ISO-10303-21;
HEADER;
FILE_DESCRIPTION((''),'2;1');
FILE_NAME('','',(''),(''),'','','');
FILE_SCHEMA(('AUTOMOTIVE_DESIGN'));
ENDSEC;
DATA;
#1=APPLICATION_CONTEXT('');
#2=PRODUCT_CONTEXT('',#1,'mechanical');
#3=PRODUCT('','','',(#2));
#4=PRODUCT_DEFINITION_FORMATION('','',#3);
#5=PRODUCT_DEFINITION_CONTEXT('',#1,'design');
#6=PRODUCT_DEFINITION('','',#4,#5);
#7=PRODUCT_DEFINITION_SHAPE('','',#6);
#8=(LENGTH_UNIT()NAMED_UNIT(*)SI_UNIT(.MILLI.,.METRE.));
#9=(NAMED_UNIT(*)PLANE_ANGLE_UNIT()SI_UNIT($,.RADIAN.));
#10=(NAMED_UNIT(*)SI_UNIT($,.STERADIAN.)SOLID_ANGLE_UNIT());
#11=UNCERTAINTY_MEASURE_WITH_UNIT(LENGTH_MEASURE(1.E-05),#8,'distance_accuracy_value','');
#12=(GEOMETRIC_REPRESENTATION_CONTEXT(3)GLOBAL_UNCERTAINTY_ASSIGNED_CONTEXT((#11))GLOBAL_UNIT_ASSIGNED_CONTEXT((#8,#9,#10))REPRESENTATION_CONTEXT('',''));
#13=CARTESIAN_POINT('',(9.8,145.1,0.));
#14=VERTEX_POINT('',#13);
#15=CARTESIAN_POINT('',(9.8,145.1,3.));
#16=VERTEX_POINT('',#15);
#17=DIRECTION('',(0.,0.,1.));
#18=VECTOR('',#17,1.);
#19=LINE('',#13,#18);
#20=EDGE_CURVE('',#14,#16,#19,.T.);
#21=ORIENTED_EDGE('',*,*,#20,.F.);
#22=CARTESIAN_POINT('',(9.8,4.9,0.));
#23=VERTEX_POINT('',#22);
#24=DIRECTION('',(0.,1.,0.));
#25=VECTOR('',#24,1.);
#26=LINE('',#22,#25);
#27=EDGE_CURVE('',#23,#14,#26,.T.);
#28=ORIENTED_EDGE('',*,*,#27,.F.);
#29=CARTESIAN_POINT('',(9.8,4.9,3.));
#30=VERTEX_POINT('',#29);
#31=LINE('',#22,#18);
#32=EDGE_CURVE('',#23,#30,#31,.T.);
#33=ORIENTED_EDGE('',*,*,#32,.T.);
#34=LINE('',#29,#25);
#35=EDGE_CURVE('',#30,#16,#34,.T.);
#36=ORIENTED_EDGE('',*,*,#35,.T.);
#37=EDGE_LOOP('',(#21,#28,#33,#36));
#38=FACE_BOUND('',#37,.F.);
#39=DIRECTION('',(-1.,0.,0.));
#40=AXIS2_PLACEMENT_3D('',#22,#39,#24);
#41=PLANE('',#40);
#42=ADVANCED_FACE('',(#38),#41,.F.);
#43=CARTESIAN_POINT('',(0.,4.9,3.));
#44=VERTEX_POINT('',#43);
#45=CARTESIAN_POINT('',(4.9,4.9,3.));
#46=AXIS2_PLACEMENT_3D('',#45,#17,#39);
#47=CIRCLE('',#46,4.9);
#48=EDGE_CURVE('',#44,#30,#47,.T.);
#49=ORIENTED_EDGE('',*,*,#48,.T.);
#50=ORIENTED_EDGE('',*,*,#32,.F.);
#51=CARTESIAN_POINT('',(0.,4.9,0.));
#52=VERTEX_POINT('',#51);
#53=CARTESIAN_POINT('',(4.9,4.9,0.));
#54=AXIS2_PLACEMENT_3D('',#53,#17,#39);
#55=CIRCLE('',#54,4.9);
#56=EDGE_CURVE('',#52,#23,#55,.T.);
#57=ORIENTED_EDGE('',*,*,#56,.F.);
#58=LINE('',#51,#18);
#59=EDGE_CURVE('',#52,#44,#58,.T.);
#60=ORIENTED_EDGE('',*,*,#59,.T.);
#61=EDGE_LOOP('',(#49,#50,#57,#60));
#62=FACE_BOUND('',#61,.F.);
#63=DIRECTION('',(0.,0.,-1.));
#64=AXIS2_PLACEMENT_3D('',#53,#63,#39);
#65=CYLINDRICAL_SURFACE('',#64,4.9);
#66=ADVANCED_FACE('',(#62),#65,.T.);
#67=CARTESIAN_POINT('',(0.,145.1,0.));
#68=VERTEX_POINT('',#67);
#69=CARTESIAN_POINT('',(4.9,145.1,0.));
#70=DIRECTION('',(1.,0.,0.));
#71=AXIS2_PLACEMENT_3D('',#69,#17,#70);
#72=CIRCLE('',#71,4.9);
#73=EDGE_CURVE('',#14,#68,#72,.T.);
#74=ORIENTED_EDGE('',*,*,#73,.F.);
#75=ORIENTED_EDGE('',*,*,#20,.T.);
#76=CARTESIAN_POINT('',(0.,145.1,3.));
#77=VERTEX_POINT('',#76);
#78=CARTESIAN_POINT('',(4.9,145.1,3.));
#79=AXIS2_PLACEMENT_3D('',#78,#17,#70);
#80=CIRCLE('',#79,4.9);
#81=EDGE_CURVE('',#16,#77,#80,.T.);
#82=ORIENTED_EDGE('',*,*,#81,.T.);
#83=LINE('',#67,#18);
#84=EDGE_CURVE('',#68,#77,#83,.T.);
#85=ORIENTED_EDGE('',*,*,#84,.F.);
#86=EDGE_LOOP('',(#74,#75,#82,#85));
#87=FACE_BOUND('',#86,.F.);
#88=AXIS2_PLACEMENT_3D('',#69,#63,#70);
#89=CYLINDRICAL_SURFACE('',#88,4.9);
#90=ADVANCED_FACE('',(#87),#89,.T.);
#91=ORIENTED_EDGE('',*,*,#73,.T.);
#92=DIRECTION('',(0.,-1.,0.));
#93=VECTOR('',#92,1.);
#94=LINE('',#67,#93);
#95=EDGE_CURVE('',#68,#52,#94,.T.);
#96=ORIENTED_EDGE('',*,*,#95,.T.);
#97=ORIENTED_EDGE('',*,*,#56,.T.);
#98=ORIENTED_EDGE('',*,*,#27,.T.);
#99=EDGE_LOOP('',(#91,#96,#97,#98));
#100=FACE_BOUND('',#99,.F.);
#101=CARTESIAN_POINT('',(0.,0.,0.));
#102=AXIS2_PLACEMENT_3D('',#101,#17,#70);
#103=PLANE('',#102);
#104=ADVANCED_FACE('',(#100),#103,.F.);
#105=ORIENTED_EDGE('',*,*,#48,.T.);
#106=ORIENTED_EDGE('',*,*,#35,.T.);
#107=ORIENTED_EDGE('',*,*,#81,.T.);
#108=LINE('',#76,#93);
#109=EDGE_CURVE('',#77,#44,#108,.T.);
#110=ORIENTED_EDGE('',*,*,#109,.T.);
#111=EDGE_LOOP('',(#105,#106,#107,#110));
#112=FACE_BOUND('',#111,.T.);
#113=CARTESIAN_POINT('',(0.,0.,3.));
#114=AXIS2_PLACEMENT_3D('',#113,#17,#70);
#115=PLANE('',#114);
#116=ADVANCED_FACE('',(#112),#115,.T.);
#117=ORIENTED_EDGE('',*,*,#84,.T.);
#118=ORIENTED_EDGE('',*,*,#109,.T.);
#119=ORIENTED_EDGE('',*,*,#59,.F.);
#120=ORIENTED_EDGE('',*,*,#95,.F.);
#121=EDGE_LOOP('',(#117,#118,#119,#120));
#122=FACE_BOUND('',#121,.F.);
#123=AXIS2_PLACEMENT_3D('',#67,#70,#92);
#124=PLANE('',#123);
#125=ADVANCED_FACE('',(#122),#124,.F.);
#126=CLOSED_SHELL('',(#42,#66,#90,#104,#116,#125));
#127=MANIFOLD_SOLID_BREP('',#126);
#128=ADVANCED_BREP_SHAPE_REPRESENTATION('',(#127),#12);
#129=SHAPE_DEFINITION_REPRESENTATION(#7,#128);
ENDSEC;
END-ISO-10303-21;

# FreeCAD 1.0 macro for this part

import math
import FreeCAD as App
import Part
import Sketcher
from FreeCAD import Vector
Q = App.Units.Quantity

doc = App.newDocument("Part")
body = doc.addObject("PartDesign::Body", "Body")

sketch1 = body.newObject("Sketcher::SketchObject", "Sketch")
sketch1.AttachmentSupport = (doc.getObject("XY_Plane"), [""])
sketch1.MapMode = "FlatFace"
sketch1.addGeometry(Part.ArcOfCircle(Part.Circle(Vector(4.9, 4.9, 0), Vector(0, 0, 1), 4.9), math.radians(180), math.radians(360)), False)
sketch1.addGeometry(Part.LineSegment(Vector(9.8, 4.9, 0), Vector(9.8, 145.1, 0)), False)
sketch1.addGeometry(Part.ArcOfCircle(Part.Circle(Vector(4.9, 145.1, 0), Vector(0, 0, 1), 4.9), math.radians(0), math.radians(180)), False)
sketch1.addGeometry(Part.LineSegment(Vector(0, 145.1, 0), Vector(0, 4.9, 0)), False)
sketch1.addConstraint(Sketcher.Constraint("Tangent", 0, 2, 1, 1))
sketch1.addConstraint(Sketcher.Constraint("Tangent", 1, 2, 2, 1))
sketch1.addConstraint(Sketcher.Constraint("Tangent", 2, 2, 3, 1))
sketch1.addConstraint(Sketcher.Constraint("Tangent", 3, 2, 0, 1))
sketch1.addConstraint(Sketcher.Constraint("Vertical", 1))
sketch1.addConstraint(Sketcher.Constraint("Vertical", 3))
sketch1.addConstraint(Sketcher.Constraint("PointOnObject", 2, 2, -2))
sketch1.addConstraint(Sketcher.Constraint("Radius", 0, Q("4.9 mm")))
sketch1.addConstraint(Sketcher.Constraint("DistanceY", 1, 1, 1, 2, Q("140.2 mm")))
sketch1.addConstraint(Sketcher.Constraint("DistanceY", -1, 1, 0, 3, Q("4.9 mm")))
pad1 = body.newObject("PartDesign::Pad", "Pad")
pad1.Profile = sketch1
pad1.Length = 3

doc.recompute()
